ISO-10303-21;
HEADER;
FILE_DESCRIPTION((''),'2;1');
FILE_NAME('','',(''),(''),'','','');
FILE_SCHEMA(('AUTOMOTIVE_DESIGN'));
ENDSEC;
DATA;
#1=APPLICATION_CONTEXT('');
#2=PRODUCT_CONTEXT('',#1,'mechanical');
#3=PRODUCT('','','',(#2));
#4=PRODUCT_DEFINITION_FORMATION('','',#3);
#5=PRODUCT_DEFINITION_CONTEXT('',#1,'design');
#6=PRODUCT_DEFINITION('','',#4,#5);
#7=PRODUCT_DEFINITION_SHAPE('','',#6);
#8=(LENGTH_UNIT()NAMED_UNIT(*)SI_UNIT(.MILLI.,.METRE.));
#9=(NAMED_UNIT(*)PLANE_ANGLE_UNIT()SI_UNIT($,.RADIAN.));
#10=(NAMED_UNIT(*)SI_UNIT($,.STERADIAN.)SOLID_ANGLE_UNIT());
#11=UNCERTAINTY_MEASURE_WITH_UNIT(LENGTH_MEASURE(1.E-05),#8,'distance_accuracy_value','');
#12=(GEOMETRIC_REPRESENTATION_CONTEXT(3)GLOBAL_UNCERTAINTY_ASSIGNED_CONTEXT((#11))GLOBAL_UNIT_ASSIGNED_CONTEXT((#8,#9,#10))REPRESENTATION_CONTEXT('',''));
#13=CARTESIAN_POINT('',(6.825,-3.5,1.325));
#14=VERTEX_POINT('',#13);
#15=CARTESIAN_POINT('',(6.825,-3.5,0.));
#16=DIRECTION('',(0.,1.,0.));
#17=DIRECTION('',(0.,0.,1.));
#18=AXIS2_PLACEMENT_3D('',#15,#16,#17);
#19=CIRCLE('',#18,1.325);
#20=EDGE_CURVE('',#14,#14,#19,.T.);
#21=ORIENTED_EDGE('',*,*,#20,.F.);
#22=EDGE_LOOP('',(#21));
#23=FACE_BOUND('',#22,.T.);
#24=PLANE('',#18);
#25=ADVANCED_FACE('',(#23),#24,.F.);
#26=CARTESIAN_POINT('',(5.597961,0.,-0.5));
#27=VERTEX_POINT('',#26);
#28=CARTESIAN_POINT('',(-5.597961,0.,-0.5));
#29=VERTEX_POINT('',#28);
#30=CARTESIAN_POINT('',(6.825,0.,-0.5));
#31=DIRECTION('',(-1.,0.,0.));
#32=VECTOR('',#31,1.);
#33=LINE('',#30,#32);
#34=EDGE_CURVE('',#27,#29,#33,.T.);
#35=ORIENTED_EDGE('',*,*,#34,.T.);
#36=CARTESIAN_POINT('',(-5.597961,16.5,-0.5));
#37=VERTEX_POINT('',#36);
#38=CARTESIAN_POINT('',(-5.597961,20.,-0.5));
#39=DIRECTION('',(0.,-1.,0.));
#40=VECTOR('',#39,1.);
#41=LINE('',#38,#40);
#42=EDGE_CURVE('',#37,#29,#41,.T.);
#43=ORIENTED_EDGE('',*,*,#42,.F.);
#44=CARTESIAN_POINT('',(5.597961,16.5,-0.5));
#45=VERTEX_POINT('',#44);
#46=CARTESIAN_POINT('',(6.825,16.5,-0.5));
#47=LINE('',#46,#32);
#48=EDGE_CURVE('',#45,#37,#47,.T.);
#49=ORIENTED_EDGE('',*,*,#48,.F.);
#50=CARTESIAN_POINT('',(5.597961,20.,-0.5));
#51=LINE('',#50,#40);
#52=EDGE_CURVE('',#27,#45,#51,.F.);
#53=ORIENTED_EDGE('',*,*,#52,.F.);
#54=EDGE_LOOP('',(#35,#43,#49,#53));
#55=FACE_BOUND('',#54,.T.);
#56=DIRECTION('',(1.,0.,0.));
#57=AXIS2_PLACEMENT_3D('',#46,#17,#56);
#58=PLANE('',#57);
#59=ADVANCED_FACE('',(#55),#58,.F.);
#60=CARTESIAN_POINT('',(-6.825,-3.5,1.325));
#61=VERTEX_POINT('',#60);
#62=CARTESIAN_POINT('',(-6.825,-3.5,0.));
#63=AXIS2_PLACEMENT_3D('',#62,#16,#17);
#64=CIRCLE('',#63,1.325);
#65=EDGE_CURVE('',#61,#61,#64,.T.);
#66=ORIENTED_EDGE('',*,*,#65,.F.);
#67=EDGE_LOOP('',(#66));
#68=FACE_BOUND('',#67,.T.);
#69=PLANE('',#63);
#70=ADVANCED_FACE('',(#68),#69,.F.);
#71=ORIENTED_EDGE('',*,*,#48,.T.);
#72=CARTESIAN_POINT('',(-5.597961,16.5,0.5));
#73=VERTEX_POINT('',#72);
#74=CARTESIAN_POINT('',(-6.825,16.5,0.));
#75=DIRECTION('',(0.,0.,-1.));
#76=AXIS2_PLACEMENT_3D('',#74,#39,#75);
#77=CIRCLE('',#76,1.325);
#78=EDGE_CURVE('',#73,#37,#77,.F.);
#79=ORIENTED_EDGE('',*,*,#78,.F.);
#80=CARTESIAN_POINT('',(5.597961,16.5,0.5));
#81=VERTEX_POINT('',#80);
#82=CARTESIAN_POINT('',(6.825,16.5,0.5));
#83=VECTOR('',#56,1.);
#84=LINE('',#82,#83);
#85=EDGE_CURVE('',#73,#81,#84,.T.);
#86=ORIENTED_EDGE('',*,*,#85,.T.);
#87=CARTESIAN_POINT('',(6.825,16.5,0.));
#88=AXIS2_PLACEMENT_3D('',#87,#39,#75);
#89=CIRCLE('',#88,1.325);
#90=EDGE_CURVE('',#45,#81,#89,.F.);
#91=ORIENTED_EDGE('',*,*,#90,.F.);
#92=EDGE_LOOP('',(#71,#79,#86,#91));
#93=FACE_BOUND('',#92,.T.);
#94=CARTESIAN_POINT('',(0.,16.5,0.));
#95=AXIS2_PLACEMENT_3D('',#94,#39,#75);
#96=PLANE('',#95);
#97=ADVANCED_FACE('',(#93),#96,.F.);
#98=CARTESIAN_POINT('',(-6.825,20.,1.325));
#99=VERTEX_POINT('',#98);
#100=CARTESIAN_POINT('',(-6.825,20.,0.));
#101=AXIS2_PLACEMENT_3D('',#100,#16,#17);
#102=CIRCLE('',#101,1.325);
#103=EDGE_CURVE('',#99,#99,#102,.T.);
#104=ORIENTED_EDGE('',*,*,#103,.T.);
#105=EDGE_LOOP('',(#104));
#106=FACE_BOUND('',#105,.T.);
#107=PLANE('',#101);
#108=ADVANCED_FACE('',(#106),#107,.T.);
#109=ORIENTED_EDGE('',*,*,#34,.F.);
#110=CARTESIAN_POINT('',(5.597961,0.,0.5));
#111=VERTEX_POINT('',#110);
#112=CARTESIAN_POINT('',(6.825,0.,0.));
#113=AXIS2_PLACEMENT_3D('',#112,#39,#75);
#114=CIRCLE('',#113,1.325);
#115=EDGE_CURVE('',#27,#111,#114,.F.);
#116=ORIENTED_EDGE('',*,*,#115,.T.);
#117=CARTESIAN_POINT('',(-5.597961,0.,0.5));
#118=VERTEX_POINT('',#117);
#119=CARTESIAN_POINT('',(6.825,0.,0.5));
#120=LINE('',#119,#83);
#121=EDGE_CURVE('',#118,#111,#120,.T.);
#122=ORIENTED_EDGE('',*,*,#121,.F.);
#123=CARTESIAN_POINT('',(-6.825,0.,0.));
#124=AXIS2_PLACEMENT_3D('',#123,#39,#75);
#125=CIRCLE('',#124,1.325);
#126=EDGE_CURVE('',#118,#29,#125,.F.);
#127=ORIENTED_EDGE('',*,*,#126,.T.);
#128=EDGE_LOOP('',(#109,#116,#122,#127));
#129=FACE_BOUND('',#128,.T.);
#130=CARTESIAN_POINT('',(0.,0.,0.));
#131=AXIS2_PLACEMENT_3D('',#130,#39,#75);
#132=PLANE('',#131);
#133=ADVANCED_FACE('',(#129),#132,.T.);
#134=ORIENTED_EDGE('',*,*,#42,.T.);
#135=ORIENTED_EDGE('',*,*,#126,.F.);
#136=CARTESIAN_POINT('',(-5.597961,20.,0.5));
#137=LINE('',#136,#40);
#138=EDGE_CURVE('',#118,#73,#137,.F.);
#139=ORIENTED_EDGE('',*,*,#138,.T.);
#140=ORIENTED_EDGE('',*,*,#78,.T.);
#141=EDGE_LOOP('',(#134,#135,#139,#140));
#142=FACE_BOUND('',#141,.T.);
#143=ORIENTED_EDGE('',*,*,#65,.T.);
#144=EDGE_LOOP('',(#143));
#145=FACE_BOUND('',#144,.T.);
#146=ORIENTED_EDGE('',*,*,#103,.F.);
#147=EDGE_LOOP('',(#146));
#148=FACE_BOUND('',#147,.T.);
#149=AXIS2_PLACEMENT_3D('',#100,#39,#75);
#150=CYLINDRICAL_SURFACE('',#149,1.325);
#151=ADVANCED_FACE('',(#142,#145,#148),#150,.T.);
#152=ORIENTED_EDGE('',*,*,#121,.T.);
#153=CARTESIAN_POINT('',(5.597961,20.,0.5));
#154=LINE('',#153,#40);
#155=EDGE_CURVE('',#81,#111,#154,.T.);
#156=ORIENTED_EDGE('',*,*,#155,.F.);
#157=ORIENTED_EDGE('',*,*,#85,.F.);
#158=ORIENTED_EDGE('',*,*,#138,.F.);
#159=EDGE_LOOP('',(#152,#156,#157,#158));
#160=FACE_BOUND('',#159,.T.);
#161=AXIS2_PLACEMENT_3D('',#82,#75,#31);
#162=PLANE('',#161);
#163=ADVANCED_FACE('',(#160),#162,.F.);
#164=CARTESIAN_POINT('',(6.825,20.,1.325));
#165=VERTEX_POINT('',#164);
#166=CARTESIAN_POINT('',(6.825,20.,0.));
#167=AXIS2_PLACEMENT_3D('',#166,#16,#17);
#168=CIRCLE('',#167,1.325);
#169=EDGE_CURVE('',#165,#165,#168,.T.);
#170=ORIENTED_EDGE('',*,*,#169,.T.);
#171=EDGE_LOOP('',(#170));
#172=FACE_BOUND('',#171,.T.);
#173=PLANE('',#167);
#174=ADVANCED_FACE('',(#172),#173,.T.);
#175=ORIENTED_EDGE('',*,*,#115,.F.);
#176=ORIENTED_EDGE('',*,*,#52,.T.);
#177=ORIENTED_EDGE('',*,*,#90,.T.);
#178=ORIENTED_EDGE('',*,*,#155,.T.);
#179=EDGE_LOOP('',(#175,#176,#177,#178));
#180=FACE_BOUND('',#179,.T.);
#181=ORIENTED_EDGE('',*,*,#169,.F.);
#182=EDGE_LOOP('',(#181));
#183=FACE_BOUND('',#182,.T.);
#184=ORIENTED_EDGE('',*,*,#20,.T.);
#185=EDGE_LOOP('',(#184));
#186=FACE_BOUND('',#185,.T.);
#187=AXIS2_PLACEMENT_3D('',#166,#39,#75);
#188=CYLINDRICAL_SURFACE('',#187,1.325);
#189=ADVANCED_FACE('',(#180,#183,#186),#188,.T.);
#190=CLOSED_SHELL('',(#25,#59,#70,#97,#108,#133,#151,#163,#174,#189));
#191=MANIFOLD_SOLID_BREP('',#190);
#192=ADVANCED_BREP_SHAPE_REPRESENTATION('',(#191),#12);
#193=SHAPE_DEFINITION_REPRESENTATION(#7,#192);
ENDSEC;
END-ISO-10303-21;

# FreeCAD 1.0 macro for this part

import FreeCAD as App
import Part
import Sketcher

doc = App.newDocument("Part")
params = doc.addObject("Spreadsheet::Sheet", "Params")
for row, (alias, value) in enumerate([
    ("sketch1_height", "1 mm"),
    ("sketch1_width", "13.65 mm"),
    ("pad1_length", "16.5 mm"),
    ("sketch2_diameter", "2.65 mm"),
    ("pad2_length", "23.5 mm"),
], start=1):
    params.set(f"A{row}", alias)
    params.set(f"B{row}", "=" + value)
    params.setAlias(f"B{row}", alias)

body = doc.addObject("PartDesign::Body", "Body")

# Sketch on XZ plane
sketch1 = doc.addObject("Sketcher::SketchObject", "Sketch")
body.addObject(sketch1)
sketch1.AttachmentSupport = (doc.XZ_Plane, [""])
sketch1.MapMode = "FlatFace"
sketch1.addGeometry([
    Part.LineSegment(App.Vector(-6.825, -0.5, 0), App.Vector(-6.825, 0.5, 0)),
    Part.LineSegment(App.Vector(-6.825, 0.5, 0), App.Vector(6.825, 0.5, 0)),
    Part.LineSegment(App.Vector(6.825, 0.5, 0), App.Vector(6.825, -0.5, 0)),
    Part.LineSegment(App.Vector(6.825, -0.5, 0), App.Vector(-6.825, -0.5, 0)),
], False)
sketch1.addConstraint([
    Sketcher.Constraint("Coincident", 0, 2, 1, 1),
    Sketcher.Constraint("Coincident", 1, 2, 2, 1),
    Sketcher.Constraint("Coincident", 2, 2, 3, 1),
    Sketcher.Constraint("Coincident", 3, 2, 0, 1),
    Sketcher.Constraint("Vertical", 0),
    Sketcher.Constraint("Horizontal", 1),
    Sketcher.Constraint("Vertical", 2),
    Sketcher.Constraint("Horizontal", 3),
    Sketcher.Constraint("Symmetric", 0, 2, 2, 2, -1, 1),
    Sketcher.Constraint("DistanceY", 0, 1, 0, 2, 1.0),
    Sketcher.Constraint("DistanceX", 1, 1, 1, 2, 13.65),
])
sketch1.setExpression("Constraints[9]", "Params.sketch1_height")
sketch1.setExpression("Constraints[10]", "Params.sketch1_width")
pad1 = doc.addObject("PartDesign::Pad", "Pad")
body.addObject(pad1)
pad1.Profile = sketch1
pad1.setExpression("Length", "Params.pad1_length")
pad1.Reversed = True

# Sketch on XZ plane
sketch2 = doc.addObject("Sketcher::SketchObject", "Sketch001")
body.addObject(sketch2)
sketch2.AttachmentSupport = (doc.XZ_Plane, [""])
sketch2.MapMode = "FlatFace"
sketch2.AttachmentOffset = App.Placement(App.Vector(0, 0, -8.25), App.Rotation())
sketch2.addGeometry([
    Part.Circle(App.Vector(-6.825, 0, 0), App.Vector(0, 0, 1), 1.325),
    Part.Circle(App.Vector(6.825, 0, 0), App.Vector(0, 0, 1), 1.325),
], False)
sketch2.addConstraint([
    Sketcher.Constraint("Equal", 0, 1),
    Sketcher.Constraint("Symmetric", 0, 3, 1, 3, -1, 1),
    Sketcher.Constraint("PointOnObject", 0, 3, -1),
    Sketcher.Constraint("Diameter", 0, 2.65),
    Sketcher.Constraint("DistanceX", 0, 3, 1, 3, 13.65),
])
sketch2.setExpression("Constraints[3]", "Params.sketch2_diameter")
pad2 = doc.addObject("PartDesign::Pad", "Pad001")
body.addObject(pad2)
pad2.Profile = sketch2
pad2.setExpression("Length", "Params.pad2_length")
pad2.Midplane = True

doc.recompute()
